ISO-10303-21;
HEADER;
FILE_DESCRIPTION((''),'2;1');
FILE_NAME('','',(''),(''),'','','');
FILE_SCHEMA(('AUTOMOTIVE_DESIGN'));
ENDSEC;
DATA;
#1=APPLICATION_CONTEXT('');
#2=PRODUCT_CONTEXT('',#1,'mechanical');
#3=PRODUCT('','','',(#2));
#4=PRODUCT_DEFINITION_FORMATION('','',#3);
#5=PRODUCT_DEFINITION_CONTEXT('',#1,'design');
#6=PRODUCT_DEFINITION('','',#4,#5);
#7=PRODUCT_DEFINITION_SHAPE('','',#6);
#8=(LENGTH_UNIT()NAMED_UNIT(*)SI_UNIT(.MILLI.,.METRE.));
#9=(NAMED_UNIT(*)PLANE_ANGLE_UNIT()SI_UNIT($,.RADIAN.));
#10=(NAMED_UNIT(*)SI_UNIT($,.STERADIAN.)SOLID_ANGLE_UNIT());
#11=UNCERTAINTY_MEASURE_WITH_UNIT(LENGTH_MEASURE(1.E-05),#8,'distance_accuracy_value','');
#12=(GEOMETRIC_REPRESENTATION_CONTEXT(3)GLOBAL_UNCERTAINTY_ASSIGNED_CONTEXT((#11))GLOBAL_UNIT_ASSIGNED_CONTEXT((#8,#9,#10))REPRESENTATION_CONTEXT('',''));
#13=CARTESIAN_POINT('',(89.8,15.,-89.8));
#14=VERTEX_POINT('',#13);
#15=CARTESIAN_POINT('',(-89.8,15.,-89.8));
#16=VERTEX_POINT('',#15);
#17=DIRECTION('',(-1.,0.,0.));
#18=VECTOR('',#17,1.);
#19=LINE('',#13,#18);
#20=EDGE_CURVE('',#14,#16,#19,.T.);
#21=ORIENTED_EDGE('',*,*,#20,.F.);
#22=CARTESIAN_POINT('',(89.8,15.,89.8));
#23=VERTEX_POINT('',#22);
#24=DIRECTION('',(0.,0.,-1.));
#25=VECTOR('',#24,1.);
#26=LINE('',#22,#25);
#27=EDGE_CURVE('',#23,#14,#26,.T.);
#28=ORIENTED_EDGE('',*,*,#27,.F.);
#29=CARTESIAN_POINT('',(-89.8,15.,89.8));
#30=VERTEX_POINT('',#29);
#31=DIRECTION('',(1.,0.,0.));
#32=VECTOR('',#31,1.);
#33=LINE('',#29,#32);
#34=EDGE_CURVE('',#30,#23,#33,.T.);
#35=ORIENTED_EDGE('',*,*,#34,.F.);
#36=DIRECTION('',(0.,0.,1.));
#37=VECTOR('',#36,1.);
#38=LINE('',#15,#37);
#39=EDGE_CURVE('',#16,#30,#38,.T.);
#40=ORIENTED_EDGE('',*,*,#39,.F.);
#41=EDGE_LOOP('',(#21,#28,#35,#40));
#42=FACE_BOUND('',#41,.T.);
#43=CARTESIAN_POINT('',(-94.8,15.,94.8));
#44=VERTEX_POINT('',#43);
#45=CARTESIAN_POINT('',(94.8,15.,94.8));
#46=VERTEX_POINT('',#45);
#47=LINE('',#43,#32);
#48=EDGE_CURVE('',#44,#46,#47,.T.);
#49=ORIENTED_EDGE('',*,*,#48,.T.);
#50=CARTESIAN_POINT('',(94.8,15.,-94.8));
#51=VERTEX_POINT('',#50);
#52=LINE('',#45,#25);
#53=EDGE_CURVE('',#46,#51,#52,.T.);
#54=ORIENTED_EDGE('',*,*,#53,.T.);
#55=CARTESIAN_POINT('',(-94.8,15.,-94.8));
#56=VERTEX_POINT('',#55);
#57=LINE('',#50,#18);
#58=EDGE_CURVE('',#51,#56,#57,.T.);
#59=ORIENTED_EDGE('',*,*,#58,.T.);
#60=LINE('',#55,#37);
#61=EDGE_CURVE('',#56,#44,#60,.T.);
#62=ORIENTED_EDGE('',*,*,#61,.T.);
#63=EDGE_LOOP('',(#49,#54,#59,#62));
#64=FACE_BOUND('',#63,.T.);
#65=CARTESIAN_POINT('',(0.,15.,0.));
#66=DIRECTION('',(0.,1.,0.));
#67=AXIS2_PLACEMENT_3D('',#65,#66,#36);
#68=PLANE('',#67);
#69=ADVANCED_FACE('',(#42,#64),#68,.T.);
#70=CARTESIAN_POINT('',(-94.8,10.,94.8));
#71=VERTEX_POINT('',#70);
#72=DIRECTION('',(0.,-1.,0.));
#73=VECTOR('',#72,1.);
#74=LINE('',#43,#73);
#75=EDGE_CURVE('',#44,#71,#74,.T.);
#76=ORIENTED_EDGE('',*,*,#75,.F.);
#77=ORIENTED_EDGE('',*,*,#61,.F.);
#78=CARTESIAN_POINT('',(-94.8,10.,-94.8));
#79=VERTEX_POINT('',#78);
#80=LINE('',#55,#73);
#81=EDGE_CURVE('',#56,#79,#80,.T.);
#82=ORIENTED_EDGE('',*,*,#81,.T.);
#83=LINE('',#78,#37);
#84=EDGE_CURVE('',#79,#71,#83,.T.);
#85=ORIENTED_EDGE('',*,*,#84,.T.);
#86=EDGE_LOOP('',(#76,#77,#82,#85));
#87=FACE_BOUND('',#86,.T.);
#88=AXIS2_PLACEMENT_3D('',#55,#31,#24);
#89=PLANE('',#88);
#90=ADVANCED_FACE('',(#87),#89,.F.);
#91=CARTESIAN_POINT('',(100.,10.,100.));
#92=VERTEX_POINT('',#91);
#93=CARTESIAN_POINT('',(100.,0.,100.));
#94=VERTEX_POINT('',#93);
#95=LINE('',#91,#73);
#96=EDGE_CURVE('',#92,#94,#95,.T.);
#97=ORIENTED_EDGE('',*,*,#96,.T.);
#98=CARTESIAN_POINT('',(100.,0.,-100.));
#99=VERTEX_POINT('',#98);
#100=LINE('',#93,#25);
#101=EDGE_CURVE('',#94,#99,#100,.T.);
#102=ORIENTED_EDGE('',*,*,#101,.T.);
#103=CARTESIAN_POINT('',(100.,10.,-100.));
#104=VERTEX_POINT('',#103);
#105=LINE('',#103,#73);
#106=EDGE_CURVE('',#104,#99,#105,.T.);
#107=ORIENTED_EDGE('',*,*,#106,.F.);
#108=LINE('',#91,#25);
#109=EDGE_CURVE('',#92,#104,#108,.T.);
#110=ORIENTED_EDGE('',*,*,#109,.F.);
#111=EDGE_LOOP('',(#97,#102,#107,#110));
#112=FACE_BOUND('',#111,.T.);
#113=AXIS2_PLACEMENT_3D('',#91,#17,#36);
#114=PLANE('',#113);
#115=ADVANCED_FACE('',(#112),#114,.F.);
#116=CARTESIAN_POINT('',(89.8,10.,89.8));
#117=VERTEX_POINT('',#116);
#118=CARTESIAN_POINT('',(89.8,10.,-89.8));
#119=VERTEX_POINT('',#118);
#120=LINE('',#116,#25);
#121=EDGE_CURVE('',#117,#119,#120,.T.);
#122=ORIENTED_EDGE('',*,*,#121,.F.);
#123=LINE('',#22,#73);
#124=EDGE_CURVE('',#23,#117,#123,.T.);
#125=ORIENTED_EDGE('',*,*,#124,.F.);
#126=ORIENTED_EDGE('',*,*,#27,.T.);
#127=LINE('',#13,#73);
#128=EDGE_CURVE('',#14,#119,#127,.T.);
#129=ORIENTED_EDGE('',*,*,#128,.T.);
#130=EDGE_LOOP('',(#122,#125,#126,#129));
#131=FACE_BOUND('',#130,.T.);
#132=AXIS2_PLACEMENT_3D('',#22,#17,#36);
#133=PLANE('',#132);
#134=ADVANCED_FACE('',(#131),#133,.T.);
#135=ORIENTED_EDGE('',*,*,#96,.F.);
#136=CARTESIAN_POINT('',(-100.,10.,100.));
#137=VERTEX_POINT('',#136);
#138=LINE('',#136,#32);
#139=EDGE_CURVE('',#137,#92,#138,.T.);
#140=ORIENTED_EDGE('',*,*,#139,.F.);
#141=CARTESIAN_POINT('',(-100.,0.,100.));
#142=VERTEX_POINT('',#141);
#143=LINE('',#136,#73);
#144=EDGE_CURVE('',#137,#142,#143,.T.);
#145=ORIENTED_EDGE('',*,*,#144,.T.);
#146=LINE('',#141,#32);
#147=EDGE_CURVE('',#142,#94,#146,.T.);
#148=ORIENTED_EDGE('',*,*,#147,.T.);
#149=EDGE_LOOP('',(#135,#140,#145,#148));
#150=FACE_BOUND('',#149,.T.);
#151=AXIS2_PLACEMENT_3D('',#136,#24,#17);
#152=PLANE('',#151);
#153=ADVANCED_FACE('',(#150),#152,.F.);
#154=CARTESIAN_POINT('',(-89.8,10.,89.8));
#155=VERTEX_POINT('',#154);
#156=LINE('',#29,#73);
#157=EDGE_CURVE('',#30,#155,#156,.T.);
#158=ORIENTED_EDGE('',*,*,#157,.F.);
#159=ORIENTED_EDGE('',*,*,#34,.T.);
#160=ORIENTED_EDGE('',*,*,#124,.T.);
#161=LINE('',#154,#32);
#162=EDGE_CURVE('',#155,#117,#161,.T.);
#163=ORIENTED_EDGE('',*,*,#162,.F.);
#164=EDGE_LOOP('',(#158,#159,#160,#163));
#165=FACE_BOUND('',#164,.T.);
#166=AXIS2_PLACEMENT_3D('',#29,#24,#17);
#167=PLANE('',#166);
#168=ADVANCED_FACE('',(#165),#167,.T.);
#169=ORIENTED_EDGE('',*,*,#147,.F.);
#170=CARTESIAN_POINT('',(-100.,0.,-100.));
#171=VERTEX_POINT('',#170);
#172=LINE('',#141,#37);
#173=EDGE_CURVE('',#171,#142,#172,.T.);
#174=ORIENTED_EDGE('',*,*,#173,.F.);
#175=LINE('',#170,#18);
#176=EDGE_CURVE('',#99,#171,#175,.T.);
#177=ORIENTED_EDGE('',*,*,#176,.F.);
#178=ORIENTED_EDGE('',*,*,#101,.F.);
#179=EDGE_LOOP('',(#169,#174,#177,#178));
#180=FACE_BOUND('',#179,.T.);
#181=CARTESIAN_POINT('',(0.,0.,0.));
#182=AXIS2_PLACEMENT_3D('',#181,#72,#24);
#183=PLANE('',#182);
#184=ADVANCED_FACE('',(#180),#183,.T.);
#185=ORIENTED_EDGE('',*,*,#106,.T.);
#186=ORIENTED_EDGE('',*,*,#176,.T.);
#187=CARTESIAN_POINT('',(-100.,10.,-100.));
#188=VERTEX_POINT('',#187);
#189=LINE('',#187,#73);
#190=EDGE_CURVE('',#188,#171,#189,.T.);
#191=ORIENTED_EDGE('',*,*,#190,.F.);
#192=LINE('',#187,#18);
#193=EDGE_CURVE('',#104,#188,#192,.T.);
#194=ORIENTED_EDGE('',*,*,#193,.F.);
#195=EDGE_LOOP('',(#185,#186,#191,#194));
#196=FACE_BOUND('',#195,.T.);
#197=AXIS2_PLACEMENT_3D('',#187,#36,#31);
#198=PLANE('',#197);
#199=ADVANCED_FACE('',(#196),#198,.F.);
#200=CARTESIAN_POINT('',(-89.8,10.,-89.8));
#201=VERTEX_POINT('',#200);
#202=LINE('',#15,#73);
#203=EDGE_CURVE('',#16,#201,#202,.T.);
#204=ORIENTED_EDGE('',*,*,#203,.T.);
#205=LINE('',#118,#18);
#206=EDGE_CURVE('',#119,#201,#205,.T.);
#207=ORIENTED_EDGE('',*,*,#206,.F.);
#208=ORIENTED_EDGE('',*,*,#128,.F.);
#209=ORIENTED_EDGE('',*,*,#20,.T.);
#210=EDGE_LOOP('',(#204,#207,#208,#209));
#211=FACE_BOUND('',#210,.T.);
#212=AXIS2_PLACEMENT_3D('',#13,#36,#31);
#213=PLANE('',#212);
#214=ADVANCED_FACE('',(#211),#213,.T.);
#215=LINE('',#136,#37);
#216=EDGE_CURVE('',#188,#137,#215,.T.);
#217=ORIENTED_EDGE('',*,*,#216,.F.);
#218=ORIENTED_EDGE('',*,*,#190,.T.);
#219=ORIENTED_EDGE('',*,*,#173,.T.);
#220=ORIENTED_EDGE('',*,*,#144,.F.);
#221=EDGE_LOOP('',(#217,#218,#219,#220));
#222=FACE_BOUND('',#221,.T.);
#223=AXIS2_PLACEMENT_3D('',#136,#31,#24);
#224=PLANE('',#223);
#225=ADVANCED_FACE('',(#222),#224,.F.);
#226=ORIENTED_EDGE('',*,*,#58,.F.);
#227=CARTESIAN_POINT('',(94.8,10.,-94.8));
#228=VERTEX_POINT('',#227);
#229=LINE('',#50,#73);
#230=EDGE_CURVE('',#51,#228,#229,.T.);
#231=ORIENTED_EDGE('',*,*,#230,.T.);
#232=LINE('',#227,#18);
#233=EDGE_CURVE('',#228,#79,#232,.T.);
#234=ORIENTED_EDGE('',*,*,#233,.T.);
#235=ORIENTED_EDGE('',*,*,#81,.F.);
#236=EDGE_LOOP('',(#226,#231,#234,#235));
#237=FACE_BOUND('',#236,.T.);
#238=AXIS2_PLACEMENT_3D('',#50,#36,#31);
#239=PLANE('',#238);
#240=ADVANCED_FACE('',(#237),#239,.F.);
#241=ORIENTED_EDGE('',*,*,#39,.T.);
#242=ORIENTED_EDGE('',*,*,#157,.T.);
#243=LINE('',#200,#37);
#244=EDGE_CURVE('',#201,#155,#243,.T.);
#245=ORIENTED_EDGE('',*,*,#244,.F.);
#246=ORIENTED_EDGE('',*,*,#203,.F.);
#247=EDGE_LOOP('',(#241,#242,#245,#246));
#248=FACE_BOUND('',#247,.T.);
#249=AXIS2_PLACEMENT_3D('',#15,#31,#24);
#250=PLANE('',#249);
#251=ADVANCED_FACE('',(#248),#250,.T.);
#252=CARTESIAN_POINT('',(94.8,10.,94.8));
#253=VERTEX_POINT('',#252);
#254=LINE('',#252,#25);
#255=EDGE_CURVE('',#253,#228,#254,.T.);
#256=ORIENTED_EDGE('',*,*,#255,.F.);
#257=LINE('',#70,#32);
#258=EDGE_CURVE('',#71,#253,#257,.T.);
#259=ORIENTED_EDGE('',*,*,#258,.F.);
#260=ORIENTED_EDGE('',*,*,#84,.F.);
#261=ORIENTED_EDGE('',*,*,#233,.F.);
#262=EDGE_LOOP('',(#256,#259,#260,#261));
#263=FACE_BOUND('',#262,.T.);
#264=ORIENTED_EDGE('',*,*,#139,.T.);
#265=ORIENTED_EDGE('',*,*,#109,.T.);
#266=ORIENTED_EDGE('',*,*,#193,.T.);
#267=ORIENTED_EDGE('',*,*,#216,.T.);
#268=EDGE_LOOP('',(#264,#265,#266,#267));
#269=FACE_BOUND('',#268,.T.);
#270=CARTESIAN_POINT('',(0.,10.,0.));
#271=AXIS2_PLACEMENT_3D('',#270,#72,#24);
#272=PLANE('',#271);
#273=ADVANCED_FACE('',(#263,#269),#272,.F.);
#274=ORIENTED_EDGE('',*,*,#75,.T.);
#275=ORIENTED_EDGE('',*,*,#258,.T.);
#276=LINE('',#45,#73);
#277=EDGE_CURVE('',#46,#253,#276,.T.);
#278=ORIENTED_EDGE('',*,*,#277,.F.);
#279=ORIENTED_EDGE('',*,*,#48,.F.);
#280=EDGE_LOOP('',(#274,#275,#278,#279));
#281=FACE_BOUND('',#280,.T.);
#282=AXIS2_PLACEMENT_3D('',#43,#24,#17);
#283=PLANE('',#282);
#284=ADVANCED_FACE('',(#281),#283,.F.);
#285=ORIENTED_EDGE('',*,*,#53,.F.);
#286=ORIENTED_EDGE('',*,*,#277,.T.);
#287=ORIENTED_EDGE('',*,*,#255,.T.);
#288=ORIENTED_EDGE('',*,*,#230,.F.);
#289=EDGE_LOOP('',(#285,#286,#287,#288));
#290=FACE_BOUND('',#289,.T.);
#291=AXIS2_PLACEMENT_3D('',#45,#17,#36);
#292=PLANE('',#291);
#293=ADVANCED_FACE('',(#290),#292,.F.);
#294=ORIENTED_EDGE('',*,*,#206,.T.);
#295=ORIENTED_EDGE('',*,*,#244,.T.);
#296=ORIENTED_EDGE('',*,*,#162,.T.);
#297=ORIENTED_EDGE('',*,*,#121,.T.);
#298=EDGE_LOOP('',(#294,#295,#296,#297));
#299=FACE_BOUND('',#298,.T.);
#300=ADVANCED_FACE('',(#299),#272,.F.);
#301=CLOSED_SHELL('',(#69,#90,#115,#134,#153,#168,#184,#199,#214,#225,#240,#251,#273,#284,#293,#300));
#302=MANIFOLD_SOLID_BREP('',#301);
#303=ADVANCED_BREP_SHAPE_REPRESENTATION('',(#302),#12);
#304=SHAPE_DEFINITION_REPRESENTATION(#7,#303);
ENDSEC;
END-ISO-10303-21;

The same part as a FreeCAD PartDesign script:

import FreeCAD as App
import Part
import Sketcher
from FreeCAD import Vector
Q = App.Units.Quantity

doc = App.newDocument("Part")
params = doc.addObject("Spreadsheet::Sheet", "Params")
for row, (alias, value) in enumerate([
    ("sketch1_width", "200 mm"),
    ("pad1_length", "10 mm"),
    ("sketch2_width", "189.6 mm"),
    ("sketch2_width2", "179.6 mm"),
    ("pad2_length", "5 mm"),
], start=1):
    params.set(f"A{row}", alias)
    params.set(f"B{row}", "=" + value)
    params.setAlias(f"B{row}", alias)

body = doc.addObject("PartDesign::Body", "Body")

sketch1 = doc.addObject("Sketcher::SketchObject", "Sketch")
body.addObject(sketch1)
sketch1.AttachmentSupport = (doc.XZ_Plane, [""])
sketch1.MapMode = "FlatFace"
sketch1.addGeometry([
    Part.LineSegment(Vector(-100, -100, 0), Vector(-100, 100, 0)),
    Part.LineSegment(Vector(-100, 100, 0), Vector(100, 100, 0)),
    Part.LineSegment(Vector(100, 100, 0), Vector(100, -100, 0)),
    Part.LineSegment(Vector(100, -100, 0), Vector(-100, -100, 0)),
], False)
sketch1.addConstraint([
    Sketcher.Constraint("Coincident", 0, 2, 1, 1),
    Sketcher.Constraint("Coincident", 1, 2, 2, 1),
    Sketcher.Constraint("Coincident", 2, 2, 3, 1),
    Sketcher.Constraint("Coincident", 3, 2, 0, 1),
    Sketcher.Constraint("Vertical", 0),
    Sketcher.Constraint("Horizontal", 1),
    Sketcher.Constraint("Vertical", 2),
    Sketcher.Constraint("Horizontal", 3),
    Sketcher.Constraint("Symmetric", 0, 2, 2, 2, -1, 1),
    Sketcher.Constraint("Equal", 3, 0),
    Sketcher.Constraint("DistanceX", 1, 1, 1, 2, Q("200 mm")),
])
sketch1.setExpression("Constraints[10]", "Params.sketch1_width")
pad1 = doc.addObject("PartDesign::Pad", "Pad")
body.addObject(pad1)
pad1.Profile = sketch1
pad1.setExpression("Length", "Params.pad1_length")
pad1.Reversed = True

sketch2 = doc.addObject("Sketcher::SketchObject", "Sketch001")
body.addObject(sketch2)
sketch2.AttachmentSupport = (doc.XZ_Plane, [""])
sketch2.MapMode = "FlatFace"
sketch2.AttachmentOffset = App.Placement(Vector(0, 0, -10), App.Rotation())
sketch2.addGeometry([
    Part.LineSegment(Vector(-95, -95, 0), Vector(-95, 95, 0)),
    Part.LineSegment(Vector(-95, 95, 0), Vector(95, 95, 0)),
    Part.LineSegment(Vector(95, 95, 0), Vector(95, -95, 0)),
    Part.LineSegment(Vector(95, -95, 0), Vector(-95, -95, 0)),
    Part.LineSegment(Vector(90, 90, 0), Vector(-90, 90, 0)),
    Part.LineSegment(Vector(-90, 90, 0), Vector(-90, -90, 0)),
    Part.LineSegment(Vector(-90, -90, 0), Vector(90, -90, 0)),
    Part.LineSegment(Vector(90, -90, 0), Vector(90, 90, 0)),
], False)
sketch2.addConstraint([
    Sketcher.Constraint("Coincident", 0, 2, 1, 1),
    Sketcher.Constraint("Coincident", 1, 2, 2, 1),
    Sketcher.Constraint("Coincident", 2, 2, 3, 1),
    Sketcher.Constraint("Coincident", 3, 2, 0, 1),
    Sketcher.Constraint("Coincident", 4, 2, 5, 1),
    Sketcher.Constraint("Coincident", 5, 2, 6, 1),
    Sketcher.Constraint("Coincident", 6, 2, 7, 1),
    Sketcher.Constraint("Coincident", 7, 2, 4, 1),
    Sketcher.Constraint("Vertical", 0),
    Sketcher.Constraint("Horizontal", 1),
    Sketcher.Constraint("Vertical", 2),
    Sketcher.Constraint("Horizontal", 3),
    Sketcher.Constraint("Horizontal", 4),
    Sketcher.Constraint("Vertical", 5),
    Sketcher.Constraint("Horizontal", 6),
    Sketcher.Constraint("Vertical", 7),
    Sketcher.Constraint("Symmetric", 0, 2, 2, 2, -1, 1),
    Sketcher.Constraint("Symmetric", 4, 2, 6, 2, -1, 1),
    Sketcher.Constraint("Equal", 3, 0),
    Sketcher.Constraint("Equal", 6, 5),
    Sketcher.Constraint("DistanceX", 1, 1, 1, 2, Q("189.6 mm")),
    Sketcher.Constraint("DistanceX", 4, 2, 4, 1, Q("179.6 mm")),
])
sketch2.setExpression("Constraints[20]", "Params.sketch2_width")
sketch2.setExpression("Constraints[21]", "Params.sketch2_width2")
pad2 = doc.addObject("PartDesign::Pad", "Pad001")
body.addObject(pad2)
pad2.Profile = sketch2
pad2.setExpression("Length", "Params.pad2_length")
pad2.Reversed = True

doc.recompute()
